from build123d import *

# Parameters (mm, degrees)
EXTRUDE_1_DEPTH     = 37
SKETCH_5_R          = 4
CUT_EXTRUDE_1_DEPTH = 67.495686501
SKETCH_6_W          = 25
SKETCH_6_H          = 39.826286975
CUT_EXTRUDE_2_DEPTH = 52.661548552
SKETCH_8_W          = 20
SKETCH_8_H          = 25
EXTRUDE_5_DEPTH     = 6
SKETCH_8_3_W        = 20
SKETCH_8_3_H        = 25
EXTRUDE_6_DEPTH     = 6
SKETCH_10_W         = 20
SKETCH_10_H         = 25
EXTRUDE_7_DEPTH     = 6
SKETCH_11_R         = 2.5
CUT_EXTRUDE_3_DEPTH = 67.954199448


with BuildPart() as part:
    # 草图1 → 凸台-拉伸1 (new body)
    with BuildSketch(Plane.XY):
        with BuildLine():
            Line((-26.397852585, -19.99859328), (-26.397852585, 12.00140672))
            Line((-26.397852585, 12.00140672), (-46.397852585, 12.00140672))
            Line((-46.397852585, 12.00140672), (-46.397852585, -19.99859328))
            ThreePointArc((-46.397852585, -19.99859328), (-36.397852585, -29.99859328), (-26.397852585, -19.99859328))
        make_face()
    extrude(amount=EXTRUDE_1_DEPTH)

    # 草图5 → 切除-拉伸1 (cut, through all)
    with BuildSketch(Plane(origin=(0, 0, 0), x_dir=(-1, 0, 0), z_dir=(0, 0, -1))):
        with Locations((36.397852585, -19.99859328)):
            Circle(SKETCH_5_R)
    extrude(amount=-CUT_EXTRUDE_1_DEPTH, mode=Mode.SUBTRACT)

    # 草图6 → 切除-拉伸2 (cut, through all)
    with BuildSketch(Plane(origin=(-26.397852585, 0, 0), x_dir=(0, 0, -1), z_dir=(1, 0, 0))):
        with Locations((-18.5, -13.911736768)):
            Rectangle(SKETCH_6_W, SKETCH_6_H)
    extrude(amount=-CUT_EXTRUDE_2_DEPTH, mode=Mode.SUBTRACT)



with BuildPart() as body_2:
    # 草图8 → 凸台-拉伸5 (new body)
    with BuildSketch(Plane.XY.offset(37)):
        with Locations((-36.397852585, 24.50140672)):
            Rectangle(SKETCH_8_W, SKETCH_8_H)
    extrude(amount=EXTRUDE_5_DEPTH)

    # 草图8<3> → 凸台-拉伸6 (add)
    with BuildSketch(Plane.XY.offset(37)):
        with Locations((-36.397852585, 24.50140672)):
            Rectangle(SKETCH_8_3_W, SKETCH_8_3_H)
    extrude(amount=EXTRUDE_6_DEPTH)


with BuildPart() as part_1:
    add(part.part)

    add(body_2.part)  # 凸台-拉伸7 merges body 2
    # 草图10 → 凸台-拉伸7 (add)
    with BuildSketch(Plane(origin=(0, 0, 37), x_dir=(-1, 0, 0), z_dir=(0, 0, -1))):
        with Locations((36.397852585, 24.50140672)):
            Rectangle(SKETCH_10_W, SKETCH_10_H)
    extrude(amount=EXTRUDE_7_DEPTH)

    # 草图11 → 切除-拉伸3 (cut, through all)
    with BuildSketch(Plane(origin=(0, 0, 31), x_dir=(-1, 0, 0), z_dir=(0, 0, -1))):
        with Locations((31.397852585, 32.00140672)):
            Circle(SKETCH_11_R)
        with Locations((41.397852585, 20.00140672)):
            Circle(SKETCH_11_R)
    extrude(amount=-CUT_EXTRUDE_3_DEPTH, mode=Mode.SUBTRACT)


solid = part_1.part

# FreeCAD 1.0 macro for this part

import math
import FreeCAD as App
import Part
import Sketcher

V = App.Vector
Q = App.Units.Quantity

doc = App.newDocument("Part")
body = doc.addObject("PartDesign::Body", "Body")

sketch1 = body.newObject("Sketcher::SketchObject", "Sketch")
sketch1.AttachmentSupport = (doc.getObject("XY_Plane"), [""])
sketch1.MapMode = "FlatFace"
sketch1.addGeometry(Part.LineSegment(V(-26, -20, 0), V(-26, 12, 0)), False)
sketch1.addGeometry(Part.LineSegment(V(-26, 12, 0), V(-46, 12, 0)), False)
sketch1.addGeometry(Part.LineSegment(V(-46, 12, 0), V(-46, -20, 0)), False)
sketch1.addGeometry(Part.ArcOfCircle(Part.Circle(V(-36, -20, 0), V(0, 0, 1), 10), math.radians(180), math.radians(360)), False)
sketch1.addConstraint(Sketcher.Constraint("Coincident", 0, 2, 1, 1))
sketch1.addConstraint(Sketcher.Constraint("Coincident", 1, 2, 2, 1))
sketch1.addConstraint(Sketcher.Constraint("Tangent", 2, 2, 3, 1))
sketch1.addConstraint(Sketcher.Constraint("Tangent", 3, 2, 0, 1))
sketch1.addConstraint(Sketcher.Constraint("Vertical", 0))
sketch1.addConstraint(Sketcher.Constraint("Horizontal", 1))
sketch1.addConstraint(Sketcher.Constraint("Vertical", 2))
sketch1.addConstraint(Sketcher.Constraint("Radius", 3, Q("10 mm")))
sketch1.addConstraint(Sketcher.Constraint("DistanceY", 0, 1, 0, 2, Q("32 mm")))
sketch1.addConstraint(Sketcher.Constraint("DistanceX", 3, 3, -1, 1, Q("36.397853 mm")))
sketch1.addConstraint(Sketcher.Constraint("DistanceY", 3, 3, -1, 1, Q("19.998593 mm")))
pad1 = body.newObject("PartDesign::Pad", "Pad")
pad1.Profile = sketch1
pad1.Length = 37

sketch2 = body.newObject("Sketcher::SketchObject", "Sketch001")
sketch2.AttachmentSupport = (doc.getObject("XY_Plane"), [""])
sketch2.MapMode = "FlatFace"
sketch2.addGeometry(Part.Circle(V(-36.4, -20, 0), V(0, 0, 1), 4), False)
sketch2.addConstraint(Sketcher.Constraint("Diameter", 0, Q("8 mm")))
sketch2.addConstraint(Sketcher.Constraint("DistanceX", 0, 3, -1, 1, Q("36.397853 mm")))
sketch2.addConstraint(Sketcher.Constraint("DistanceY", 0, 3, -1, 1, Q("19.998593 mm")))
pocket1 = body.newObject("PartDesign::Pocket", "Pocket")
pocket1.Profile = sketch2
pocket1.Type = "ThroughAll"
pocket1.Reversed = True

sketch3 = body.newObject("Sketcher::SketchObject", "Sketch002")
sketch3.AttachmentSupport = (doc.getObject("YZ_Plane"), [""])
sketch3.MapMode = "FlatFace"
sketch3.AttachmentOffset = App.Placement(V(0, 0, -26.397853), App.Rotation())
sketch3.addGeometry(Part.LineSegment(V(6, 31, 0), V(-34, 31, 0)), False)
sketch3.addGeometry(Part.LineSegment(V(-34, 31, 0), V(-34, 6, 0)), False)
sketch3.addGeometry(Part.LineSegment(V(-34, 6, 0), V(6, 6, 0)), False)
sketch3.addGeometry(Part.LineSegment(V(6, 6, 0), V(6, 31, 0)), False)
sketch3.addConstraint(Sketcher.Constraint("Coincident", 0, 2, 1, 1))
sketch3.addConstraint(Sketcher.Constraint("Coincident", 1, 2, 2, 1))
sketch3.addConstraint(Sketcher.Constraint("Coincident", 2, 2, 3, 1))
sketch3.addConstraint(Sketcher.Constraint("Coincident", 3, 2, 0, 1))
sketch3.addConstraint(Sketcher.Constraint("Horizontal", 0))
sketch3.addConstraint(Sketcher.Constraint("Vertical", 1))
sketch3.addConstraint(Sketcher.Constraint("Horizontal", 2))
sketch3.addConstraint(Sketcher.Constraint("Vertical", 3))
sketch3.addConstraint(Sketcher.Constraint("DistanceY", 1, 2, 1, 1, Q("25 mm")))
sketch3.addConstraint(Sketcher.Constraint("DistanceY", -1, 1, 0, 2, Q("31 mm")))
sketch3.addConstraint(Sketcher.Constraint("DistanceX", 0, 2, 0, 1, Q("39.826287 mm")))
sketch3.addConstraint(Sketcher.Constraint("DistanceX", 0, 2, -1, 1, Q("33.82488 mm")))
pocket2 = body.newObject("PartDesign::Pocket", "Pocket001")
pocket2.Profile = sketch3
pocket2.Type = "ThroughAll"
body2 = doc.addObject("PartDesign::Body", "Body001")

sketch4 = body2.newObject("Sketcher::SketchObject", "Sketch003")
sketch4.AttachmentSupport = (doc.getObject("XY_Plane001"), [""])
sketch4.MapMode = "FlatFace"
sketch4.AttachmentOffset = App.Placement(V(0, 0, 37), App.Rotation())
sketch4.addGeometry(Part.LineSegment(V(-46, 37, 0), V(-46, 12, 0)), False)
sketch4.addGeometry(Part.LineSegment(V(-46, 12, 0), V(-26, 12, 0)), False)
sketch4.addGeometry(Part.LineSegment(V(-26, 12, 0), V(-26, 37, 0)), False)
sketch4.addGeometry(Part.LineSegment(V(-26, 37, 0), V(-46, 37, 0)), False)
sketch4.addConstraint(Sketcher.Constraint("Coincident", 0, 2, 1, 1))
sketch4.addConstraint(Sketcher.Constraint("Coincident", 1, 2, 2, 1))
sketch4.addConstraint(Sketcher.Constraint("Coincident", 2, 2, 3, 1))
sketch4.addConstraint(Sketcher.Constraint("Coincident", 3, 2, 0, 1))
sketch4.addConstraint(Sketcher.Constraint("Vertical", 0))
sketch4.addConstraint(Sketcher.Constraint("Horizontal", 1))
sketch4.addConstraint(Sketcher.Constraint("Vertical", 2))
sketch4.addConstraint(Sketcher.Constraint("Horizontal", 3))
sketch4.addConstraint(Sketcher.Constraint("DistanceX", 1, 1, 1, 2, Q("20 mm")))
sketch4.addConstraint(Sketcher.Constraint("DistanceY", 0, 2, 0, 1, Q("25 mm")))
sketch4.addConstraint(Sketcher.Constraint("DistanceX", 0, 2, -1, 1, Q("46.397853 mm")))
sketch4.addConstraint(Sketcher.Constraint("DistanceY", -1, 1, 0, 2, Q("12.001407 mm")))
pad2 = body2.newObject("PartDesign::Pad", "Pad001")
pad2.Profile = sketch4
pad2.Length = 6

sketch5 = body2.newObject("Sketcher::SketchObject", "Sketch004")
sketch5.AttachmentSupport = (doc.getObject("XY_Plane001"), [""])
sketch5.MapMode = "FlatFace"
sketch5.AttachmentOffset = App.Placement(V(0, 0, 37), App.Rotation())
sketch5.addGeometry(Part.LineSegment(V(-46, 37, 0), V(-46, 12, 0)), False)
sketch5.addGeometry(Part.LineSegment(V(-46, 12, 0), V(-26, 12, 0)), False)
sketch5.addGeometry(Part.LineSegment(V(-26, 12, 0), V(-26, 37, 0)), False)
sketch5.addGeometry(Part.LineSegment(V(-26, 37, 0), V(-46, 37, 0)), False)
sketch5.addConstraint(Sketcher.Constraint("Coincident", 0, 2, 1, 1))
sketch5.addConstraint(Sketcher.Constraint("Coincident", 1, 2, 2, 1))
sketch5.addConstraint(Sketcher.Constraint("Coincident", 2, 2, 3, 1))
sketch5.addConstraint(Sketcher.Constraint("Coincident", 3, 2, 0, 1))
sketch5.addConstraint(Sketcher.Constraint("Vertical", 0))
sketch5.addConstraint(Sketcher.Constraint("Horizontal", 1))
sketch5.addConstraint(Sketcher.Constraint("Vertical", 2))
sketch5.addConstraint(Sketcher.Constraint("Horizontal", 3))
sketch5.addConstraint(Sketcher.Constraint("DistanceX", 1, 1, 1, 2, Q("20 mm")))
sketch5.addConstraint(Sketcher.Constraint("DistanceY", 0, 2, 0, 1, Q("25 mm")))
sketch5.addConstraint(Sketcher.Constraint("DistanceX", 0, 2, -1, 1, Q("46.397853 mm")))
sketch5.addConstraint(Sketcher.Constraint("DistanceY", -1, 1, 0, 2, Q("12.001407 mm")))
pad3 = body2.newObject("PartDesign::Pad", "Pad002")
pad3.Profile = sketch5
pad3.Length = 6
body.AllowCompound = True
doc.recompute()

boolean = body.newObject("PartDesign::Boolean", "Boolean")
boolean.Type = "Fuse"
boolean.addObjects([body2])

sketch6 = body.newObject("Sketcher::SketchObject", "Sketch005")
sketch6.AttachmentSupport = (doc.getObject("XY_Plane"), [""])
sketch6.MapMode = "FlatFace"
sketch6.AttachmentOffset = App.Placement(V(0, 0, 37), App.Rotation())
sketch6.addGeometry(Part.LineSegment(V(-26, 37, 0), V(-26, 12, 0)), False)
sketch6.addGeometry(Part.LineSegment(V(-26, 12, 0), V(-46, 12, 0)), False)
sketch6.addGeometry(Part.LineSegment(V(-46, 12, 0), V(-46, 37, 0)), False)
sketch6.addGeometry(Part.LineSegment(V(-46, 37, 0), V(-26, 37, 0)), False)
sketch6.addConstraint(Sketcher.Constraint("Coincident", 0, 2, 1, 1))
sketch6.addConstraint(Sketcher.Constraint("Coincident", 1, 2, 2, 1))
sketch6.addConstraint(Sketcher.Constraint("Coincident", 2, 2, 3, 1))
sketch6.addConstraint(Sketcher.Constraint("Coincident", 3, 2, 0, 1))
sketch6.addConstraint(Sketcher.Constraint("Vertical", 0))
sketch6.addConstraint(Sketcher.Constraint("Horizontal", 1))
sketch6.addConstraint(Sketcher.Constraint("Vertical", 2))
sketch6.addConstraint(Sketcher.Constraint("Horizontal", 3))
sketch6.addConstraint(Sketcher.Constraint("DistanceX", 1, 2, 1, 1, Q("20 mm")))
sketch6.addConstraint(Sketcher.Constraint("DistanceY", 0, 2, 0, 1, Q("25 mm")))
sketch6.addConstraint(Sketcher.Constraint("DistanceX", 0, 2, -1, 1, Q("26.397853 mm")))
sketch6.addConstraint(Sketcher.Constraint("DistanceY", -1, 1, 0, 2, Q("12.001407 mm")))
pad4 = body.newObject("PartDesign::Pad", "Pad003")
pad4.Profile = sketch6
pad4.Length = 6
pad4.Reversed = True

sketch7 = body.newObject("Sketcher::SketchObject", "Sketch006")
sketch7.AttachmentSupport = (doc.getObject("XY_Plane"), [""])
sketch7.MapMode = "FlatFace"
sketch7.AttachmentOffset = App.Placement(V(0, 0, 31), App.Rotation())
sketch7.addGeometry(Part.Circle(V(-31.4, 32, 0), V(0, 0, 1), 2.5), False)
sketch7.addGeometry(Part.Circle(V(-41.4, 20, 0), V(0, 0, 1), 2.5), False)
sketch7.addConstraint(Sketcher.Constraint("Equal", 0, 1))
sketch7.addConstraint(Sketcher.Constraint("Diameter", 0, Q("5 mm")))
sketch7.addConstraint(Sketcher.Constraint("DistanceX", 1, 3, 0, 3, Q("10 mm")))
sketch7.addConstraint(Sketcher.Constraint("DistanceY", 1, 3, 0, 3, Q("12 mm")))
sketch7.addConstraint(Sketcher.Constraint("DistanceX", 0, 3, -1, 1, Q("31.397853 mm")))
sketch7.addConstraint(Sketcher.Constraint("DistanceY", -1, 1, 0, 3, Q("32.001407 mm")))
pocket3 = body.newObject("PartDesign::Pocket", "Pocket002")
pocket3.Profile = sketch7
pocket3.Type = "ThroughAll"
pocket3.Reversed = True

doc.recompute()
